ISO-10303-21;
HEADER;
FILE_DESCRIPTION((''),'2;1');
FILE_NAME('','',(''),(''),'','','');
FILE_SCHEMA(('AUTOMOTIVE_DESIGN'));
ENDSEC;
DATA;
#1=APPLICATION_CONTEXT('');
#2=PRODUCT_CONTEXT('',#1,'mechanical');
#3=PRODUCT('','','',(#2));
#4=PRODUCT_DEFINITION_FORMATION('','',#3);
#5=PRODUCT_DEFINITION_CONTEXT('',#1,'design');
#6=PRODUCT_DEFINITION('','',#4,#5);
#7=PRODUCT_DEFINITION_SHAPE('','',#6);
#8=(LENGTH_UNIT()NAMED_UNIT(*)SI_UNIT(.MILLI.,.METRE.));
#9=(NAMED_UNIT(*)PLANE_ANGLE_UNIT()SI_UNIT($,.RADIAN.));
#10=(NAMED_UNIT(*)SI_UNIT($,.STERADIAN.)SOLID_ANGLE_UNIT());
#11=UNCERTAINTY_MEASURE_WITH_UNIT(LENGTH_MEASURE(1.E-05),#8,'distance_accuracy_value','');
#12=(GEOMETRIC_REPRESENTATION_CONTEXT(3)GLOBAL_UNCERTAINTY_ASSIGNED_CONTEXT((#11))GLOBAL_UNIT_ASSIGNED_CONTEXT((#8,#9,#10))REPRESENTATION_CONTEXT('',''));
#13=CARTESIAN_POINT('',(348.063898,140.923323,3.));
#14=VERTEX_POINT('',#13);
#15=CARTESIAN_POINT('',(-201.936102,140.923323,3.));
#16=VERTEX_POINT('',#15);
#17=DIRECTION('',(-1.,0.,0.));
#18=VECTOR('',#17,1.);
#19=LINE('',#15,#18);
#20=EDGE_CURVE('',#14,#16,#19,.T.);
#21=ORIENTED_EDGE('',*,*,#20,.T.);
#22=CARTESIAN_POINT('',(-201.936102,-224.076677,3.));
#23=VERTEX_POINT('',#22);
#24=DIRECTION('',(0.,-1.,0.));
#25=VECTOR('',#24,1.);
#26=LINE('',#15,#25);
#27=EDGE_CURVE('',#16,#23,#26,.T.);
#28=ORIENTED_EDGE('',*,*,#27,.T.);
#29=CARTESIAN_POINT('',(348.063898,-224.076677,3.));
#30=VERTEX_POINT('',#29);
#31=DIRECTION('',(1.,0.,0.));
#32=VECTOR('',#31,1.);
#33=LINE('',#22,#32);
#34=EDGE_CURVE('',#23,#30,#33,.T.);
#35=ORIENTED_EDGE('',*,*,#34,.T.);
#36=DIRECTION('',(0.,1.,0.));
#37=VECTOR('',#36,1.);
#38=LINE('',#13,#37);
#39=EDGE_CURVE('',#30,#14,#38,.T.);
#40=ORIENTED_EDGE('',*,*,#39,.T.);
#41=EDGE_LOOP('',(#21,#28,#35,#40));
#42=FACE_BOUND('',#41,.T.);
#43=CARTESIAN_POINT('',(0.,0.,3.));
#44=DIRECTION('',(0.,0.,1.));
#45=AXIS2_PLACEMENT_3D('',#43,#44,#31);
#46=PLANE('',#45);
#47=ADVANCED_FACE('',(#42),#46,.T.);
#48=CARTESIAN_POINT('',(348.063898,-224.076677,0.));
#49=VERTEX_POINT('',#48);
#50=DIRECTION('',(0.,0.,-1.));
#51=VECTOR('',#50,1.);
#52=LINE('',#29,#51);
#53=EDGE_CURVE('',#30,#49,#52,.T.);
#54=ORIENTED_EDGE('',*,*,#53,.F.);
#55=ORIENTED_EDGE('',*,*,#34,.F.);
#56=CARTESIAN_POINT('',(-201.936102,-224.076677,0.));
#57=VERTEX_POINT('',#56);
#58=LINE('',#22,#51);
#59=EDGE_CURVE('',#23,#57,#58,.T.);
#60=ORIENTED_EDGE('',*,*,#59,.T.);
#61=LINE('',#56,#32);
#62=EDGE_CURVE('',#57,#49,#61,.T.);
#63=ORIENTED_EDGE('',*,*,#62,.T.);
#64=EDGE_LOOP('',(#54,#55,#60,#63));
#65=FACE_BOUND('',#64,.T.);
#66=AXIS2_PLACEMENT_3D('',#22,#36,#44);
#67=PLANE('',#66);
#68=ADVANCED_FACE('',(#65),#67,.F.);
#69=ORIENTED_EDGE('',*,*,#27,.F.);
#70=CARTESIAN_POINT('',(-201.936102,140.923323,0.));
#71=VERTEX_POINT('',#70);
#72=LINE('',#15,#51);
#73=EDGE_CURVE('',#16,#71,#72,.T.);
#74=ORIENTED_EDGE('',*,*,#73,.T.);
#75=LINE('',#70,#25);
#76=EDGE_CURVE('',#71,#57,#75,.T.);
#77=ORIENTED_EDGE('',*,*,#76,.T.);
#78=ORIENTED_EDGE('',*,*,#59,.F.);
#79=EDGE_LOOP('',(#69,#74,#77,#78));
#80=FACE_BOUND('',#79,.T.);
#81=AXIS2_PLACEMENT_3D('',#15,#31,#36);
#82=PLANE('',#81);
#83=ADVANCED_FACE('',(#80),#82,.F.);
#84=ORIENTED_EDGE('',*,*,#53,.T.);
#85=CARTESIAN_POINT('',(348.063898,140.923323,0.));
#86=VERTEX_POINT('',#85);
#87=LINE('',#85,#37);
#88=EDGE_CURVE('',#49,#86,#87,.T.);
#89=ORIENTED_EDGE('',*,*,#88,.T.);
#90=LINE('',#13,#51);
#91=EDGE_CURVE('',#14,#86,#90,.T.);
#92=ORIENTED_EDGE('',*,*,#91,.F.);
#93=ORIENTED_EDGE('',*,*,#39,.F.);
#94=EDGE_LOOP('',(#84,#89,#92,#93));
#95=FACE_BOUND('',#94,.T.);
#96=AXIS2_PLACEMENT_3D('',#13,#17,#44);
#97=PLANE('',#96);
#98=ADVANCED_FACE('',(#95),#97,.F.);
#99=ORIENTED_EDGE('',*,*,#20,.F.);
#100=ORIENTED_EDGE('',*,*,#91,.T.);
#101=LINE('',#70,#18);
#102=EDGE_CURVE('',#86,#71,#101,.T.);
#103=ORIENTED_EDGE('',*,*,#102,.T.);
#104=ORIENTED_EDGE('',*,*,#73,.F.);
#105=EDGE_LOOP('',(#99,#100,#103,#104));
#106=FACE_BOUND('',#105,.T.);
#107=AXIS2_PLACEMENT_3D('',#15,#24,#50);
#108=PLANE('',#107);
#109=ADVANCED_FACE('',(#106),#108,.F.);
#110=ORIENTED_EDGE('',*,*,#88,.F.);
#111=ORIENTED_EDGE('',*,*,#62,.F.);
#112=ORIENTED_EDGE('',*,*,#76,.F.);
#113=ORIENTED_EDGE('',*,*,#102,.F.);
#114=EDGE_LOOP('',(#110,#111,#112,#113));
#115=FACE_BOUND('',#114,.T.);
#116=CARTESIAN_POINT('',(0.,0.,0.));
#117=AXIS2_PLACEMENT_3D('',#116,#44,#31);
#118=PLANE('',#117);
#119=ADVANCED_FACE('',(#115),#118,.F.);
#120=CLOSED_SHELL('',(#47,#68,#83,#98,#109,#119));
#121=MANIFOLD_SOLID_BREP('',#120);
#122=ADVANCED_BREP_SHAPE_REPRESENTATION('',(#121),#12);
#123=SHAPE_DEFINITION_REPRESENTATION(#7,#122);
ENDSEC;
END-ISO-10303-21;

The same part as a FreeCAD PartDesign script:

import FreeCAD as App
import Part
import Sketcher
Q = App.Units.Quantity

doc = App.newDocument("Part")
body = doc.addObject("PartDesign::Body", "Body")

# Sketch on XY plane
sketch1 = body.newObject("Sketcher::SketchObject", "Sketch")
sketch1.AttachmentSupport = (doc.getObject("XY_Plane"), [""])
sketch1.MapMode = "FlatFace"
sketch1.addGeometry([
    Part.LineSegment(App.Vector(-202, 141, 0), App.Vector(-202, -224, 0)),
    Part.LineSegment(App.Vector(-202, -224, 0), App.Vector(348, -224, 0)),
    Part.LineSegment(App.Vector(348, -224, 0), App.Vector(348, 141, 0)),
    Part.LineSegment(App.Vector(348, 141, 0), App.Vector(-202, 141, 0)),
], False)
sketch1.addConstraint([
    Sketcher.Constraint("Coincident", 0, 2, 1, 1),
    Sketcher.Constraint("Coincident", 1, 2, 2, 1),
    Sketcher.Constraint("Coincident", 2, 2, 3, 1),
    Sketcher.Constraint("Coincident", 3, 2, 0, 1),
    Sketcher.Constraint("Vertical", 0),
    Sketcher.Constraint("Horizontal", 1),
    Sketcher.Constraint("Vertical", 2),
    Sketcher.Constraint("Horizontal", 3),
    Sketcher.Constraint("DistanceX", 1, 1, 1, 2, Q("550 mm")),
    Sketcher.Constraint("DistanceY", 0, 2, 0, 1, Q("365 mm")),
    Sketcher.Constraint("DistanceX", 0, 2, -1, 1, Q("201.936102 mm")),
    Sketcher.Constraint("DistanceY", 0, 2, -1, 1, Q("224.076677 mm")),
])
pad1 = body.newObject("PartDesign::Pad", "Pad")
pad1.Profile = sketch1
pad1.Length = 3

doc.recompute()
